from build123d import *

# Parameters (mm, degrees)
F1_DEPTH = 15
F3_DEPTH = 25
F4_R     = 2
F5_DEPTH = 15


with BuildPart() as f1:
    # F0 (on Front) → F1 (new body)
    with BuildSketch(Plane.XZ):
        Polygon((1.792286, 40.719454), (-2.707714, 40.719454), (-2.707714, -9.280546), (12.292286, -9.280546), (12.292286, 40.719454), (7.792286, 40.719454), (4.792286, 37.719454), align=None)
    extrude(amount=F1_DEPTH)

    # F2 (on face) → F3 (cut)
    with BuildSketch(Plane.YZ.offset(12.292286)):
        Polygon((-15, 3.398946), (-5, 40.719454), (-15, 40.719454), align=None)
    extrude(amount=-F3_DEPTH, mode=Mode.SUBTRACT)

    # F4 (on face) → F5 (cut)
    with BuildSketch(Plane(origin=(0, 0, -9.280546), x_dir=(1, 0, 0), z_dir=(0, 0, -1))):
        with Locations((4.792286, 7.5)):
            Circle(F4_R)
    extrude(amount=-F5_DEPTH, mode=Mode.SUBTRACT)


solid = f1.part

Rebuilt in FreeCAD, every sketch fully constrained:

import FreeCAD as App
import Part
import Sketcher

V = App.Vector
Q = App.Units.Quantity


def add_polygon(sketch, points):
    """Adds a closed chain of lines whose ends are joined by coincident constraints."""
    first, n = sketch.GeometryCount, len(points)
    for a, b in zip(points, points[1:] + points[:1]):
        sketch.addGeometry(Part.LineSegment(App.Vector(*a, 0), App.Vector(*b, 0)), False)
    for i in range(n):
        sketch.addConstraint(Sketcher.Constraint("Coincident", first + i, 2, first + (i + 1) % n, 1))

doc = App.newDocument("Part")
params = doc.addObject("Spreadsheet::Sheet", "Params")
for row, (alias, value) in enumerate([
    ("sketch1_width", "15 mm"),
    ("sketch1_height", "50 mm"),
    ("sketch1_width2", "4.5 mm"),
    ("pad1_length", "15 mm"),
    ("sketch2_width", "10 mm"),
    ("pocket1_length", "25 mm"),
    ("sketch3_diameter", "4 mm"),
    ("pocket2_length", "15 mm"),
], start=1):
    params.set(f"A{row}", alias)
    params.set(f"B{row}", "=" + value)
    params.setAlias(f"B{row}", alias)

body = doc.addObject("PartDesign::Body", "Body")

# Sketch on XZ plane
sketch1 = body.newObject("Sketcher::SketchObject", "Sketch")
sketch1.AttachmentSupport = (doc.getObject("XZ_Plane"), [""])
sketch1.MapMode = "FlatFace"
add_polygon(sketch1, [(1.8, 40.7), (-2.7, 40.7), (-2.7, -9.3), (12.3, -9.3), (12.3, 40.7), (7.8, 40.7), (4.8, 37.7)])  # lines 0-6
sketch1.addConstraint(Sketcher.Constraint("Horizontal", 0))
sketch1.addConstraint(Sketcher.Constraint("Vertical", 1))
sketch1.addConstraint(Sketcher.Constraint("Horizontal", 2))
sketch1.addConstraint(Sketcher.Constraint("Vertical", 3))
sketch1.addConstraint(Sketcher.Constraint("Horizontal", 4))
sketch1.addConstraint(Sketcher.Constraint("Perpendicular", 5, 6))
sketch1.addConstraint(Sketcher.Constraint("Horizontal", 0, 2, 3, 2))
sketch1.addConstraint(Sketcher.Constraint("Equal", 0, 4))
sketch1.addConstraint(Sketcher.Constraint("Equal", 5, 6))
sketch1.addConstraint(Sketcher.Constraint("DistanceX", 2, 1, 2, 2, Q("15 mm")))
sketch1.addConstraint(Sketcher.Constraint("DistanceY", 1, 2, 1, 1, Q("50 mm")))
sketch1.addConstraint(Sketcher.Constraint("DistanceX", 0, 2, 0, 1, Q("4.5 mm")))
sketch1.addConstraint(Sketcher.Constraint("DistanceX", 0, 2, -1, 1, Q("2.707714 mm")))
sketch1.addConstraint(Sketcher.Constraint("DistanceY", -1, 1, 0, 2, Q("40.719454 mm")))
sketch1.setExpression("Constraints[16]", "Params.sketch1_width")
sketch1.setExpression("Constraints[17]", "Params.sketch1_height")
sketch1.setExpression("Constraints[18]", "Params.sketch1_width2")
pad1 = body.newObject("PartDesign::Pad", "Pad")
pad1.Profile = sketch1
pad1.setExpression("Length", "Params.pad1_length")

# Sketch on YZ plane
sketch2 = body.newObject("Sketcher::SketchObject", "Sketch001")
sketch2.AttachmentSupport = (doc.getObject("YZ_Plane"), [""])
sketch2.MapMode = "FlatFace"
sketch2.AttachmentOffset = App.Placement(V(0, 0, 12.292286), App.Rotation())
add_polygon(sketch2, [(-15, 3), (-5, 41), (-15, 41)])  # lines 0-2
sketch2.addConstraint(Sketcher.Constraint("Horizontal", 1))
sketch2.addConstraint(Sketcher.Constraint("Vertical", 2))
sketch2.addConstraint(Sketcher.Constraint("DistanceX", 1, 2, 1, 1, Q("10 mm")))
sketch2.addConstraint(Sketcher.Constraint("Angle", 0, Q("75 deg")))
sketch2.addConstraint(Sketcher.Constraint("DistanceX", 0, 2, -1, 1, Q("5 mm")))
sketch2.addConstraint(Sketcher.Constraint("DistanceY", -1, 1, 0, 2, Q("40.719454 mm")))
sketch2.setExpression("Constraints[5]", "Params.sketch2_width")
pocket1 = body.newObject("PartDesign::Pocket", "Pocket")
pocket1.Profile = sketch2
pocket1.setExpression("Length", "Params.pocket1_length")

# Sketch on XY plane
sketch3 = body.newObject("Sketcher::SketchObject", "Sketch002")
sketch3.AttachmentSupport = (doc.getObject("XY_Plane"), [""])
sketch3.MapMode = "FlatFace"
sketch3.AttachmentOffset = App.Placement(V(0, 0, -9.280546), App.Rotation())
sketch3.addGeometry(Part.Circle(V(4.8, -7.5, 0), V(0, 0, 1), 2), False)
sketch3.addConstraint(Sketcher.Constraint("Diameter", 0, Q("4 mm")))
sketch3.addConstraint(Sketcher.Constraint("DistanceY", 0, 3, -1, 1, Q("7.5 mm")))
sketch3.addConstraint(Sketcher.Constraint("DistanceX", -1, 1, 0, 3, Q("4.792286 mm")))
sketch3.setExpression("Constraints[0]", "Params.sketch3_diameter")
pocket2 = body.newObject("PartDesign::Pocket", "Pocket001")
pocket2.Profile = sketch3
pocket2.setExpression("Length", "Params.pocket2_length")
pocket2.Reversed = True

doc.recompute()
